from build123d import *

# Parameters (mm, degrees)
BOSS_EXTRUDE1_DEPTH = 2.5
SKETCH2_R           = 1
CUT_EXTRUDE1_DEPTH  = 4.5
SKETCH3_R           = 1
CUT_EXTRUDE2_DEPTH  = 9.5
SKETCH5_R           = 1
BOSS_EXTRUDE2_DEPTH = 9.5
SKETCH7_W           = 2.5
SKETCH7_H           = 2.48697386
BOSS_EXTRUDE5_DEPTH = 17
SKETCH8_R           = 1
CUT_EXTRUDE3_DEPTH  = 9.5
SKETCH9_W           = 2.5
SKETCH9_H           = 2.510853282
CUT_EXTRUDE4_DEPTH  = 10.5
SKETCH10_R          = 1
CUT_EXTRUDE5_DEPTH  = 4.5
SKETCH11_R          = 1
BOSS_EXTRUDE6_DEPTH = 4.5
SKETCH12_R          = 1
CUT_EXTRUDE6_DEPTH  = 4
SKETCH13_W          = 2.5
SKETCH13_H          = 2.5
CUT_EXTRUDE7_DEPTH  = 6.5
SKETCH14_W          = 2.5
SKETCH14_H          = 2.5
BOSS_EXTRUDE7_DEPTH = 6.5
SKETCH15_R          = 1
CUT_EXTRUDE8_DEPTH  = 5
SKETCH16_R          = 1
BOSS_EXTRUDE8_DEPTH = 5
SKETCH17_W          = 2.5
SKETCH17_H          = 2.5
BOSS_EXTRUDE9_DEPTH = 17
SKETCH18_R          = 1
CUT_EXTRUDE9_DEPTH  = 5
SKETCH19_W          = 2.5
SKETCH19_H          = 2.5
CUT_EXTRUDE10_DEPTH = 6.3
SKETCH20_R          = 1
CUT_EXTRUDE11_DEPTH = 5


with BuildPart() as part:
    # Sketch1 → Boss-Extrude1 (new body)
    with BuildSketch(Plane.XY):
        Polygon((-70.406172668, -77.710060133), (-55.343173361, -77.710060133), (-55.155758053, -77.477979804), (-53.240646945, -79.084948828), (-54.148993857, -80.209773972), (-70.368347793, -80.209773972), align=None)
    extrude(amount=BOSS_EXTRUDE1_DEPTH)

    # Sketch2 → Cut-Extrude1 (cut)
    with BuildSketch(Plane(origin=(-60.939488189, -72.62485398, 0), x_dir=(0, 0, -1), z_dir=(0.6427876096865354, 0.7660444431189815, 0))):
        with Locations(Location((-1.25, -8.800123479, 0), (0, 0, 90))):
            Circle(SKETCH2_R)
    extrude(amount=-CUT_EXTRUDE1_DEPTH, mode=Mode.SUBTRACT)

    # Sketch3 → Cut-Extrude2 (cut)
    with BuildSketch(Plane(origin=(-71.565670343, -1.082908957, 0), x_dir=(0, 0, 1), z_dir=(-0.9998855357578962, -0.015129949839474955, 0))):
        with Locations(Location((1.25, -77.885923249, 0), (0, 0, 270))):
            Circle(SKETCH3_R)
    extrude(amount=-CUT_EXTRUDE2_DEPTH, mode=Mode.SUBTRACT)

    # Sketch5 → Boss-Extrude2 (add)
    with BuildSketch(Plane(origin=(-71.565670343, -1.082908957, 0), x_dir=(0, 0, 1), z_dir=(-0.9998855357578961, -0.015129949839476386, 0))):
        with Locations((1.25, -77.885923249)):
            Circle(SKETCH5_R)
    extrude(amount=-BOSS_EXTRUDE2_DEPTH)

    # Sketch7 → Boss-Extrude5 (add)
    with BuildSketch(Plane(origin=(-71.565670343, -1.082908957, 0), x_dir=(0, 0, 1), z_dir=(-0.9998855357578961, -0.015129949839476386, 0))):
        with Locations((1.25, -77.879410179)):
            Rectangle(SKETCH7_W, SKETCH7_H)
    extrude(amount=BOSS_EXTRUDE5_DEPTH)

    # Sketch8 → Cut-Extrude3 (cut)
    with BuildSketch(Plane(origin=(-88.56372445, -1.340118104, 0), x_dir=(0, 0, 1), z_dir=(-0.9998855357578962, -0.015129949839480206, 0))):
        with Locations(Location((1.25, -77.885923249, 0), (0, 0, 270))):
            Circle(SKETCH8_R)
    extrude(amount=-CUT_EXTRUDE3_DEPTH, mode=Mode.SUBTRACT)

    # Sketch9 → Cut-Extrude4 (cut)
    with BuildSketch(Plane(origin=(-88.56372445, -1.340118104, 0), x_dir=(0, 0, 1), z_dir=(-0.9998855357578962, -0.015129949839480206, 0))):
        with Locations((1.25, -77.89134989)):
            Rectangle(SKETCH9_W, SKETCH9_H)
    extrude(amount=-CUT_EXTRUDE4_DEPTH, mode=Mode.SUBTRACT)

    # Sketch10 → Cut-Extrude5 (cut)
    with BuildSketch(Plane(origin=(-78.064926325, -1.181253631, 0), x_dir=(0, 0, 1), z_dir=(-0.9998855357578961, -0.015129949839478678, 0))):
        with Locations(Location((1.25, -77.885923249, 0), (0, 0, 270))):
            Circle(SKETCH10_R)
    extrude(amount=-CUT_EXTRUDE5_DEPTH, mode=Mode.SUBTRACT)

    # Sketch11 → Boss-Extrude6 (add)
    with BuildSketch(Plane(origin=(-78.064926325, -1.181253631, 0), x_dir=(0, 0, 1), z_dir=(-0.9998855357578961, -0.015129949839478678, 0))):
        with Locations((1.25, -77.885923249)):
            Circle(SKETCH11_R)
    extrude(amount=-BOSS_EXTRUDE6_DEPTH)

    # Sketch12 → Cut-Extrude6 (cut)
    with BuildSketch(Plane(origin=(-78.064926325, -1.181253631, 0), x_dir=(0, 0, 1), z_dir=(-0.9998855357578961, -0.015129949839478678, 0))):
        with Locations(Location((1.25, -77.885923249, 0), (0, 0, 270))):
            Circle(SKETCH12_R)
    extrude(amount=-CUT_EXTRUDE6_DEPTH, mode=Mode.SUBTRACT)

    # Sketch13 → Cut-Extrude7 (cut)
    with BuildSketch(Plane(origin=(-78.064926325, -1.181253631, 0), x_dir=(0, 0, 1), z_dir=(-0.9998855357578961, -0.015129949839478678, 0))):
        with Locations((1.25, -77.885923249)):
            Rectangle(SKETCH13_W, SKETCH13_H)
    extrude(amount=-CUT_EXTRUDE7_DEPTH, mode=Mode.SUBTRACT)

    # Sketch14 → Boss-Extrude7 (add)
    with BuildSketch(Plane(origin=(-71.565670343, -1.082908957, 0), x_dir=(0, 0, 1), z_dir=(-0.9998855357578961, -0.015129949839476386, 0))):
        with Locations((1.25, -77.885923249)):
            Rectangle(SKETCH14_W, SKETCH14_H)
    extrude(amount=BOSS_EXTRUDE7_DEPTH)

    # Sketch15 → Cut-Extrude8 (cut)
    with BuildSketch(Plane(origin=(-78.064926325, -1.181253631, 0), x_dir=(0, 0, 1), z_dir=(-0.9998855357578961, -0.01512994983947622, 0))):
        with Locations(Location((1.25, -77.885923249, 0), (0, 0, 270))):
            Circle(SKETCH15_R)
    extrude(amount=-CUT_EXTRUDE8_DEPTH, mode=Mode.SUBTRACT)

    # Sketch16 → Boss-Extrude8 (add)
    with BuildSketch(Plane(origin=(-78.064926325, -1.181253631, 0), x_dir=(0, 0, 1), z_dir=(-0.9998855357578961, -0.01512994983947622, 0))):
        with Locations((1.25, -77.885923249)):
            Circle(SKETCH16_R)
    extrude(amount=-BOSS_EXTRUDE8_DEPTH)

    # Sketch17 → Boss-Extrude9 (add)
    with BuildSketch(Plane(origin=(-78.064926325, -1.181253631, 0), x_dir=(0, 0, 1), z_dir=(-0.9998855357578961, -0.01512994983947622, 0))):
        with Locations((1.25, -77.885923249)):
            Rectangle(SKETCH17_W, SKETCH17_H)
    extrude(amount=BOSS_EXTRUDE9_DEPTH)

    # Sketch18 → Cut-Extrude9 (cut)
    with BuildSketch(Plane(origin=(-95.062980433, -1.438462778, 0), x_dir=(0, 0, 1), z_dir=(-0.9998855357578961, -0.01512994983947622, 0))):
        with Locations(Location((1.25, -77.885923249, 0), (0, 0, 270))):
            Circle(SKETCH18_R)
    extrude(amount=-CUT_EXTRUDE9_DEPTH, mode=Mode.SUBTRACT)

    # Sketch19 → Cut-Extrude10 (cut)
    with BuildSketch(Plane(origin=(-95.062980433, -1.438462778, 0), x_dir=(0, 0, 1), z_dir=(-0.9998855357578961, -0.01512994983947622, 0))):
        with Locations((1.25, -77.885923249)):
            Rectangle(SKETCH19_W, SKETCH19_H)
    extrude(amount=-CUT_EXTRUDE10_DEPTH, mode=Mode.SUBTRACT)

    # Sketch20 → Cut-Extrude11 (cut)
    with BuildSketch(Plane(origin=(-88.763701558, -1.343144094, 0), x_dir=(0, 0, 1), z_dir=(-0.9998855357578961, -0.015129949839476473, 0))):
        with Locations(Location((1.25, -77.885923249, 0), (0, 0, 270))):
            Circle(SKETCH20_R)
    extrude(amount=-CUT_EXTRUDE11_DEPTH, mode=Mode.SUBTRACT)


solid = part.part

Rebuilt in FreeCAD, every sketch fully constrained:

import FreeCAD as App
import Part
import Sketcher
Q = App.Units.Quantity


def add_polygon(sketch, points):
    """Adds a closed chain of lines whose ends are joined by coincident constraints."""
    first, n = sketch.GeometryCount, len(points)
    for a, b in zip(points, points[1:] + points[:1]):
        sketch.addGeometry(Part.LineSegment(App.Vector(*a, 0), App.Vector(*b, 0)), False)
    for i in range(n):
        sketch.addConstraint(Sketcher.Constraint("Coincident", first + i, 2, first + (i + 1) % n, 1))

doc = App.newDocument("Part")
body = doc.addObject("PartDesign::Body", "Body")

# Sketch on XY plane
sketch1 = body.newObject("Sketcher::SketchObject", "Sketch")
sketch1.AttachmentSupport = (doc.getObject("XY_Plane"), [""])
sketch1.MapMode = "FlatFace"
add_polygon(sketch1, [(-55.34, -77.71), (-70.41, -77.71), (-70.37, -80.21), (-54.15, -80.21), (-53.24, -79.08), (-55.16, -77.48)])  # lines 0-5
sketch1.addConstraint(Sketcher.Constraint("Horizontal", 0))
sketch1.addConstraint(Sketcher.Constraint("Horizontal", 2))
sketch1.addConstraint(Sketcher.Constraint("Parallel", 3, 5))
sketch1.addConstraint(Sketcher.Constraint("Equal", 1, 4))
sketch1.addConstraint(Sketcher.Constraint("Angle", 4, Q("140 deg")))
sketch1.addConstraint(Sketcher.Constraint("Distance", 1, Q("2.5 mm")))
sketch1.addConstraint(Sketcher.Constraint("DistanceX", 0, 2, 0, 1, Q("15.062999 mm")))
sketch1.addConstraint(Sketcher.Constraint("DistanceX", 1, 2, 3, 2, Q("17.127701 mm")))
sketch1.addConstraint(Sketcher.Constraint("DistanceX", 2, 1, 2, 2, Q("16.219354 mm")))
sketch1.addConstraint(Sketcher.Constraint("DistanceY", 0, 2, -1, 1, Q("77.71006 mm")))
sketch1.addConstraint(Sketcher.Constraint("DistanceY", 3, 2, -1, 1, Q("79.084949 mm")))
sketch1.addConstraint(Sketcher.Constraint("DistanceX", 4, 2, -1, 1, Q("55.155758 mm")))
pad1 = body.newObject("PartDesign::Pad", "Pad")
pad1.Profile = sketch1
pad1.Length = 2.5

# Sketch on an angled plane
sketch2 = body.newObject("Sketcher::SketchObject", "Sketch001")
sketch2.Placement = App.Placement(App.Vector(-60.939488, -72.624854, 0), App.Rotation(App.Vector(0, 0, -1), App.Vector(-0.766044443, 0.64278761, 0), App.Vector(0.64278761, 0.766044443, 0), "ZXY"))
sketch2.addGeometry(Part.Circle(App.Vector(-1.2, -8.8, 0), App.Vector(0, 0, 1), 1), False)
sketch2.addConstraint(Sketcher.Constraint("Diameter", 0, Q("2 mm")))
sketch2.addConstraint(Sketcher.Constraint("DistanceX", 0, 3, -1, 1, Q("1.25 mm")))
sketch2.addConstraint(Sketcher.Constraint("DistanceY", 0, 3, -1, 1, Q("8.800123 mm")))
pocket1 = body.newObject("PartDesign::Pocket", "Pocket")
pocket1.Profile = sketch2
pocket1.Length = 4.5

# Sketch on an angled plane
sketch3 = body.newObject("Sketcher::SketchObject", "Sketch002")
sketch3.Placement = App.Placement(App.Vector(-71.56567, -1.082909, 0), App.Rotation(App.Vector(0, 0, 1), App.Vector(-0.01512995, 0.999885536, 0), App.Vector(-0.999885536, -0.01512995, 0), "ZXY"))
sketch3.addGeometry(Part.Circle(App.Vector(1.2, -77.9, 0), App.Vector(0, 0, 1), 1), False)
sketch3.addConstraint(Sketcher.Constraint("Diameter", 0, Q("2 mm")))
sketch3.addConstraint(Sketcher.Constraint("DistanceX", -1, 1, 0, 3, Q("1.25 mm")))
sketch3.addConstraint(Sketcher.Constraint("DistanceY", 0, 3, -1, 1, Q("77.885923 mm")))
pocket2 = body.newObject("PartDesign::Pocket", "Pocket001")
pocket2.Profile = sketch3
pocket2.Length = 9.5

# Sketch on an angled plane
sketch4 = body.newObject("Sketcher::SketchObject", "Sketch003")
sketch4.Placement = App.Placement(App.Vector(-71.56567, -1.082909, 0), App.Rotation(App.Vector(0, 0, 1), App.Vector(-0.01512995, 0.999885536, 0), App.Vector(-0.999885536, -0.01512995, 0), "ZXY"))
sketch4.addGeometry(Part.Circle(App.Vector(1.2, -77.9, 0), App.Vector(0, 0, 1), 1), False)
sketch4.addConstraint(Sketcher.Constraint("Diameter", 0, Q("2 mm")))
sketch4.addConstraint(Sketcher.Constraint("DistanceX", -1, 1, 0, 3, Q("1.25 mm")))
sketch4.addConstraint(Sketcher.Constraint("DistanceY", 0, 3, -1, 1, Q("77.885923 mm")))
pad2 = body.newObject("PartDesign::Pad", "Pad001")
pad2.Profile = sketch4
pad2.Length = 9.5
pad2.Reversed = True

# Sketch on an angled plane
sketch5 = body.newObject("Sketcher::SketchObject", "Sketch004")
sketch5.Placement = App.Placement(App.Vector(-71.56567, -1.082909, 0), App.Rotation(App.Vector(0, 0, 1), App.Vector(-0.01512995, 0.999885536, 0), App.Vector(-0.999885536, -0.01512995, 0), "ZXY"))
add_polygon(sketch5, [(0, -76.6), (0, -79.1), (2.5, -79.1), (2.5, -76.6)])  # lines 0-3
sketch5.addConstraint(Sketcher.Constraint("Vertical", 0))
sketch5.addConstraint(Sketcher.Constraint("Horizontal", 1))
sketch5.addConstraint(Sketcher.Constraint("Vertical", 2))
sketch5.addConstraint(Sketcher.Constraint("Horizontal", 3))
sketch5.addConstraint(Sketcher.Constraint("PointOnObject", 0, 2, -2))
sketch5.addConstraint(Sketcher.Constraint("DistanceX", 1, 1, 1, 2, Q("2.5 mm")))
sketch5.addConstraint(Sketcher.Constraint("DistanceY", 0, 2, 0, 1, Q("2.486974 mm")))
sketch5.addConstraint(Sketcher.Constraint("DistanceY", 0, 2, -1, 1, Q("79.122897 mm")))
pad3 = body.newObject("PartDesign::Pad", "Pad002")
pad3.Profile = sketch5
pad3.Length = 17

# Sketch on an angled plane
sketch6 = body.newObject("Sketcher::SketchObject", "Sketch005")
sketch6.Placement = App.Placement(App.Vector(-88.563724, -1.340118, 0), App.Rotation(App.Vector(0, 0, 1), App.Vector(-0.01512995, 0.999885536, 0), App.Vector(-0.999885536, -0.01512995, 0), "ZXY"))
sketch6.addGeometry(Part.Circle(App.Vector(1.2, -77.9, 0), App.Vector(0, 0, 1), 1), False)
sketch6.addConstraint(Sketcher.Constraint("Diameter", 0, Q("2 mm")))
sketch6.addConstraint(Sketcher.Constraint("DistanceX", -1, 1, 0, 3, Q("1.25 mm")))
sketch6.addConstraint(Sketcher.Constraint("DistanceY", 0, 3, -1, 1, Q("77.885923 mm")))
pocket3 = body.newObject("PartDesign::Pocket", "Pocket002")
pocket3.Profile = sketch6
pocket3.Length = 9.5

# Sketch on an angled plane
sketch7 = body.newObject("Sketcher::SketchObject", "Sketch006")
sketch7.Placement = App.Placement(App.Vector(-88.563724, -1.340118, 0), App.Rotation(App.Vector(0, 0, 1), App.Vector(-0.01512995, 0.999885536, 0), App.Vector(-0.999885536, -0.01512995, 0), "ZXY"))
add_polygon(sketch7, [(0, -76.6), (0, -79.1), (2.5, -79.1), (2.5, -76.6)])  # lines 0-3
sketch7.addConstraint(Sketcher.Constraint("Vertical", 0))
sketch7.addConstraint(Sketcher.Constraint("Horizontal", 1))
sketch7.addConstraint(Sketcher.Constraint("Vertical", 2))
sketch7.addConstraint(Sketcher.Constraint("Horizontal", 3))
sketch7.addConstraint(Sketcher.Constraint("PointOnObject", 0, 2, -2))
sketch7.addConstraint(Sketcher.Constraint("DistanceX", 1, 1, 1, 2, Q("2.5 mm")))
sketch7.addConstraint(Sketcher.Constraint("DistanceY", 0, 2, 0, 1, Q("2.510853 mm")))
sketch7.addConstraint(Sketcher.Constraint("DistanceY", 0, 2, -1, 1, Q("79.146777 mm")))
pocket4 = body.newObject("PartDesign::Pocket", "Pocket003")
pocket4.Profile = sketch7
pocket4.Length = 10.5

# Sketch on an angled plane
sketch8 = body.newObject("Sketcher::SketchObject", "Sketch007")
sketch8.Placement = App.Placement(App.Vector(-78.064926, -1.181254, 0), App.Rotation(App.Vector(0, 0, 1), App.Vector(-0.01512995, 0.999885536, 0), App.Vector(-0.999885536, -0.01512995, 0), "ZXY"))
sketch8.addGeometry(Part.Circle(App.Vector(1.2, -77.9, 0), App.Vector(0, 0, 1), 1), False)
sketch8.addConstraint(Sketcher.Constraint("Diameter", 0, Q("2 mm")))
sketch8.addConstraint(Sketcher.Constraint("DistanceX", -1, 1, 0, 3, Q("1.25 mm")))
sketch8.addConstraint(Sketcher.Constraint("DistanceY", 0, 3, -1, 1, Q("77.885923 mm")))
pocket5 = body.newObject("PartDesign::Pocket", "Pocket004")
pocket5.Profile = sketch8
pocket5.Length = 4.5

# Sketch on an angled plane
sketch9 = body.newObject("Sketcher::SketchObject", "Sketch008")
sketch9.Placement = App.Placement(App.Vector(-78.064926, -1.181254, 0), App.Rotation(App.Vector(0, 0, 1), App.Vector(-0.01512995, 0.999885536, 0), App.Vector(-0.999885536, -0.01512995, 0), "ZXY"))
sketch9.addGeometry(Part.Circle(App.Vector(1.2, -77.9, 0), App.Vector(0, 0, 1), 1), False)
sketch9.addConstraint(Sketcher.Constraint("Diameter", 0, Q("2 mm")))
sketch9.addConstraint(Sketcher.Constraint("DistanceX", -1, 1, 0, 3, Q("1.25 mm")))
sketch9.addConstraint(Sketcher.Constraint("DistanceY", 0, 3, -1, 1, Q("77.885923 mm")))
pad4 = body.newObject("PartDesign::Pad", "Pad003")
pad4.Profile = sketch9
pad4.Length = 4.5
pad4.Reversed = True

# Sketch on an angled plane
sketch10 = body.newObject("Sketcher::SketchObject", "Sketch009")
sketch10.Placement = App.Placement(App.Vector(-78.064926, -1.181254, 0), App.Rotation(App.Vector(0, 0, 1), App.Vector(-0.01512995, 0.999885536, 0), App.Vector(-0.999885536, -0.01512995, 0), "ZXY"))
sketch10.addGeometry(Part.Circle(App.Vector(1.2, -77.9, 0), App.Vector(0, 0, 1), 1), False)
sketch10.addConstraint(Sketcher.Constraint("Diameter", 0, Q("2 mm")))
sketch10.addConstraint(Sketcher.Constraint("DistanceX", -1, 1, 0, 3, Q("1.25 mm")))
sketch10.addConstraint(Sketcher.Constraint("DistanceY", 0, 3, -1, 1, Q("77.885923 mm")))
pocket6 = body.newObject("PartDesign::Pocket", "Pocket005")
pocket6.Profile = sketch10
pocket6.Length = 4

# Sketch on an angled plane
sketch11 = body.newObject("Sketcher::SketchObject", "Sketch010")
sketch11.Placement = App.Placement(App.Vector(-78.064926, -1.181254, 0), App.Rotation(App.Vector(0, 0, 1), App.Vector(-0.01512995, 0.999885536, 0), App.Vector(-0.999885536, -0.01512995, 0), "ZXY"))
add_polygon(sketch11, [(0, -76.6), (0, -79.1), (2.5, -79.1), (2.5, -76.6)])  # lines 0-3
sketch11.addConstraint(Sketcher.Constraint("Vertical", 0))
sketch11.addConstraint(Sketcher.Constraint("Horizontal", 1))
sketch11.addConstraint(Sketcher.Constraint("Vertical", 2))
sketch11.addConstraint(Sketcher.Constraint("Horizontal", 3))
sketch11.addConstraint(Sketcher.Constraint("PointOnObject", 0, 2, -2))
sketch11.addConstraint(Sketcher.Constraint("Equal", 3, 0))
sketch11.addConstraint(Sketcher.Constraint("DistanceX", 1, 1, 1, 2, Q("2.5 mm")))
sketch11.addConstraint(Sketcher.Constraint("DistanceY", 0, 2, -1, 1, Q("79.135923 mm")))
pocket7 = body.newObject("PartDesign::Pocket", "Pocket006")
pocket7.Profile = sketch11
pocket7.Length = 6.5

# Sketch on an angled plane
sketch12 = body.newObject("Sketcher::SketchObject", "Sketch011")
sketch12.Placement = App.Placement(App.Vector(-71.56567, -1.082909, 0), App.Rotation(App.Vector(0, 0, 1), App.Vector(-0.01512995, 0.999885536, 0), App.Vector(-0.999885536, -0.01512995, 0), "ZXY"))
add_polygon(sketch12, [(0, -76.6), (0, -79.1), (2.5, -79.1), (2.5, -76.6)])  # lines 0-3
sketch12.addConstraint(Sketcher.Constraint("Vertical", 0))
sketch12.addConstraint(Sketcher.Constraint("Horizontal", 1))
sketch12.addConstraint(Sketcher.Constraint("Vertical", 2))
sketch12.addConstraint(Sketcher.Constraint("Horizontal", 3))
sketch12.addConstraint(Sketcher.Constraint("PointOnObject", 0, 2, -2))
sketch12.addConstraint(Sketcher.Constraint("Equal", 3, 0))
sketch12.addConstraint(Sketcher.Constraint("DistanceX", 1, 1, 1, 2, Q("2.5 mm")))
sketch12.addConstraint(Sketcher.Constraint("DistanceY", 0, 2, -1, 1, Q("79.135923 mm")))
pad5 = body.newObject("PartDesign::Pad", "Pad004")
pad5.Profile = sketch12
pad5.Length = 6.5

# Sketch on an angled plane
sketch13 = body.newObject("Sketcher::SketchObject", "Sketch012")
sketch13.Placement = App.Placement(App.Vector(-78.064926, -1.181254, 0), App.Rotation(App.Vector(0, 0, 1), App.Vector(-0.01512995, 0.999885536, 0), App.Vector(-0.999885536, -0.01512995, 0), "ZXY"))
sketch13.addGeometry(Part.Circle(App.Vector(1.2, -77.9, 0), App.Vector(0, 0, 1), 1), False)
sketch13.addConstraint(Sketcher.Constraint("Diameter", 0, Q("2 mm")))
sketch13.addConstraint(Sketcher.Constraint("DistanceX", -1, 1, 0, 3, Q("1.25 mm")))
sketch13.addConstraint(Sketcher.Constraint("DistanceY", 0, 3, -1, 1, Q("77.885923 mm")))
pocket8 = body.newObject("PartDesign::Pocket", "Pocket007")
pocket8.Profile = sketch13
pocket8.Length = 5

# Sketch on an angled plane
sketch14 = body.newObject("Sketcher::SketchObject", "Sketch013")
sketch14.Placement = App.Placement(App.Vector(-78.064926, -1.181254, 0), App.Rotation(App.Vector(0, 0, 1), App.Vector(-0.01512995, 0.999885536, 0), App.Vector(-0.999885536, -0.01512995, 0), "ZXY"))
sketch14.addGeometry(Part.Circle(App.Vector(1.2, -77.9, 0), App.Vector(0, 0, 1), 1), False)
sketch14.addConstraint(Sketcher.Constraint("Diameter", 0, Q("2 mm")))
sketch14.addConstraint(Sketcher.Constraint("DistanceX", -1, 1, 0, 3, Q("1.25 mm")))
sketch14.addConstraint(Sketcher.Constraint("DistanceY", 0, 3, -1, 1, Q("77.885923 mm")))
pad6 = body.newObject("PartDesign::Pad", "Pad005")
pad6.Profile = sketch14
pad6.Length = 5
pad6.Reversed = True

# Sketch on an angled plane
sketch15 = body.newObject("Sketcher::SketchObject", "Sketch014")
sketch15.Placement = App.Placement(App.Vector(-78.064926, -1.181254, 0), App.Rotation(App.Vector(0, 0, 1), App.Vector(-0.01512995, 0.999885536, 0), App.Vector(-0.999885536, -0.01512995, 0), "ZXY"))
add_polygon(sketch15, [(0, -76.6), (0, -79.1), (2.5, -79.1), (2.5, -76.6)])  # lines 0-3
sketch15.addConstraint(Sketcher.Constraint("Vertical", 0))
sketch15.addConstraint(Sketcher.Constraint("Horizontal", 1))
sketch15.addConstraint(Sketcher.Constraint("Vertical", 2))
sketch15.addConstraint(Sketcher.Constraint("Horizontal", 3))
sketch15.addConstraint(Sketcher.Constraint("PointOnObject", 0, 2, -2))
sketch15.addConstraint(Sketcher.Constraint("Equal", 3, 0))
sketch15.addConstraint(Sketcher.Constraint("DistanceX", 1, 1, 1, 2, Q("2.5 mm")))
sketch15.addConstraint(Sketcher.Constraint("DistanceY", 0, 2, -1, 1, Q("79.135923 mm")))
pad7 = body.newObject("PartDesign::Pad", "Pad006")
pad7.Profile = sketch15
pad7.Length = 17

# Sketch on an angled plane
sketch16 = body.newObject("Sketcher::SketchObject", "Sketch015")
sketch16.Placement = App.Placement(App.Vector(-95.06298, -1.438463, 0), App.Rotation(App.Vector(0, 0, 1), App.Vector(-0.01512995, 0.999885536, 0), App.Vector(-0.999885536, -0.01512995, 0), "ZXY"))
sketch16.addGeometry(Part.Circle(App.Vector(1.2, -77.9, 0), App.Vector(0, 0, 1), 1), False)
sketch16.addConstraint(Sketcher.Constraint("Diameter", 0, Q("2 mm")))
sketch16.addConstraint(Sketcher.Constraint("DistanceX", -1, 1, 0, 3, Q("1.25 mm")))
sketch16.addConstraint(Sketcher.Constraint("DistanceY", 0, 3, -1, 1, Q("77.885923 mm")))
pocket9 = body.newObject("PartDesign::Pocket", "Pocket008")
pocket9.Profile = sketch16
pocket9.Length = 5

# Sketch on an angled plane
sketch17 = body.newObject("Sketcher::SketchObject", "Sketch016")
sketch17.Placement = App.Placement(App.Vector(-95.06298, -1.438463, 0), App.Rotation(App.Vector(0, 0, 1), App.Vector(-0.01512995, 0.999885536, 0), App.Vector(-0.999885536, -0.01512995, 0), "ZXY"))
add_polygon(sketch17, [(0, -76.6), (0, -79.1), (2.5, -79.1), (2.5, -76.6)])  # lines 0-3
sketch17.addConstraint(Sketcher.Constraint("Vertical", 0))
sketch17.addConstraint(Sketcher.Constraint("Horizontal", 1))
sketch17.addConstraint(Sketcher.Constraint("Vertical", 2))
sketch17.addConstraint(Sketcher.Constraint("Horizontal", 3))
sketch17.addConstraint(Sketcher.Constraint("PointOnObject", 0, 2, -2))
sketch17.addConstraint(Sketcher.Constraint("Equal", 3, 0))
sketch17.addConstraint(Sketcher.Constraint("DistanceX", 1, 1, 1, 2, Q("2.5 mm")))
sketch17.addConstraint(Sketcher.Constraint("DistanceY", 0, 2, -1, 1, Q("79.135923 mm")))
pocket10 = body.newObject("PartDesign::Pocket", "Pocket009")
pocket10.Profile = sketch17
pocket10.Length = 6.3

# Sketch on an angled plane
sketch18 = body.newObject("Sketcher::SketchObject", "Sketch017")
sketch18.Placement = App.Placement(App.Vector(-88.763702, -1.343144, 0), App.Rotation(App.Vector(0, 0, 1), App.Vector(-0.01512995, 0.999885536, 0), App.Vector(-0.999885536, -0.01512995, 0), "ZXY"))
sketch18.addGeometry(Part.Circle(App.Vector(1.2, -77.9, 0), App.Vector(0, 0, 1), 1), False)
sketch18.addConstraint(Sketcher.Constraint("Diameter", 0, Q("2 mm")))
sketch18.addConstraint(Sketcher.Constraint("DistanceX", -1, 1, 0, 3, Q("1.25 mm")))
sketch18.addConstraint(Sketcher.Constraint("DistanceY", 0, 3, -1, 1, Q("77.885923 mm")))
pocket11 = body.newObject("PartDesign::Pocket", "Pocket010")
pocket11.Profile = sketch18
pocket11.Length = 5

doc.recompute()
